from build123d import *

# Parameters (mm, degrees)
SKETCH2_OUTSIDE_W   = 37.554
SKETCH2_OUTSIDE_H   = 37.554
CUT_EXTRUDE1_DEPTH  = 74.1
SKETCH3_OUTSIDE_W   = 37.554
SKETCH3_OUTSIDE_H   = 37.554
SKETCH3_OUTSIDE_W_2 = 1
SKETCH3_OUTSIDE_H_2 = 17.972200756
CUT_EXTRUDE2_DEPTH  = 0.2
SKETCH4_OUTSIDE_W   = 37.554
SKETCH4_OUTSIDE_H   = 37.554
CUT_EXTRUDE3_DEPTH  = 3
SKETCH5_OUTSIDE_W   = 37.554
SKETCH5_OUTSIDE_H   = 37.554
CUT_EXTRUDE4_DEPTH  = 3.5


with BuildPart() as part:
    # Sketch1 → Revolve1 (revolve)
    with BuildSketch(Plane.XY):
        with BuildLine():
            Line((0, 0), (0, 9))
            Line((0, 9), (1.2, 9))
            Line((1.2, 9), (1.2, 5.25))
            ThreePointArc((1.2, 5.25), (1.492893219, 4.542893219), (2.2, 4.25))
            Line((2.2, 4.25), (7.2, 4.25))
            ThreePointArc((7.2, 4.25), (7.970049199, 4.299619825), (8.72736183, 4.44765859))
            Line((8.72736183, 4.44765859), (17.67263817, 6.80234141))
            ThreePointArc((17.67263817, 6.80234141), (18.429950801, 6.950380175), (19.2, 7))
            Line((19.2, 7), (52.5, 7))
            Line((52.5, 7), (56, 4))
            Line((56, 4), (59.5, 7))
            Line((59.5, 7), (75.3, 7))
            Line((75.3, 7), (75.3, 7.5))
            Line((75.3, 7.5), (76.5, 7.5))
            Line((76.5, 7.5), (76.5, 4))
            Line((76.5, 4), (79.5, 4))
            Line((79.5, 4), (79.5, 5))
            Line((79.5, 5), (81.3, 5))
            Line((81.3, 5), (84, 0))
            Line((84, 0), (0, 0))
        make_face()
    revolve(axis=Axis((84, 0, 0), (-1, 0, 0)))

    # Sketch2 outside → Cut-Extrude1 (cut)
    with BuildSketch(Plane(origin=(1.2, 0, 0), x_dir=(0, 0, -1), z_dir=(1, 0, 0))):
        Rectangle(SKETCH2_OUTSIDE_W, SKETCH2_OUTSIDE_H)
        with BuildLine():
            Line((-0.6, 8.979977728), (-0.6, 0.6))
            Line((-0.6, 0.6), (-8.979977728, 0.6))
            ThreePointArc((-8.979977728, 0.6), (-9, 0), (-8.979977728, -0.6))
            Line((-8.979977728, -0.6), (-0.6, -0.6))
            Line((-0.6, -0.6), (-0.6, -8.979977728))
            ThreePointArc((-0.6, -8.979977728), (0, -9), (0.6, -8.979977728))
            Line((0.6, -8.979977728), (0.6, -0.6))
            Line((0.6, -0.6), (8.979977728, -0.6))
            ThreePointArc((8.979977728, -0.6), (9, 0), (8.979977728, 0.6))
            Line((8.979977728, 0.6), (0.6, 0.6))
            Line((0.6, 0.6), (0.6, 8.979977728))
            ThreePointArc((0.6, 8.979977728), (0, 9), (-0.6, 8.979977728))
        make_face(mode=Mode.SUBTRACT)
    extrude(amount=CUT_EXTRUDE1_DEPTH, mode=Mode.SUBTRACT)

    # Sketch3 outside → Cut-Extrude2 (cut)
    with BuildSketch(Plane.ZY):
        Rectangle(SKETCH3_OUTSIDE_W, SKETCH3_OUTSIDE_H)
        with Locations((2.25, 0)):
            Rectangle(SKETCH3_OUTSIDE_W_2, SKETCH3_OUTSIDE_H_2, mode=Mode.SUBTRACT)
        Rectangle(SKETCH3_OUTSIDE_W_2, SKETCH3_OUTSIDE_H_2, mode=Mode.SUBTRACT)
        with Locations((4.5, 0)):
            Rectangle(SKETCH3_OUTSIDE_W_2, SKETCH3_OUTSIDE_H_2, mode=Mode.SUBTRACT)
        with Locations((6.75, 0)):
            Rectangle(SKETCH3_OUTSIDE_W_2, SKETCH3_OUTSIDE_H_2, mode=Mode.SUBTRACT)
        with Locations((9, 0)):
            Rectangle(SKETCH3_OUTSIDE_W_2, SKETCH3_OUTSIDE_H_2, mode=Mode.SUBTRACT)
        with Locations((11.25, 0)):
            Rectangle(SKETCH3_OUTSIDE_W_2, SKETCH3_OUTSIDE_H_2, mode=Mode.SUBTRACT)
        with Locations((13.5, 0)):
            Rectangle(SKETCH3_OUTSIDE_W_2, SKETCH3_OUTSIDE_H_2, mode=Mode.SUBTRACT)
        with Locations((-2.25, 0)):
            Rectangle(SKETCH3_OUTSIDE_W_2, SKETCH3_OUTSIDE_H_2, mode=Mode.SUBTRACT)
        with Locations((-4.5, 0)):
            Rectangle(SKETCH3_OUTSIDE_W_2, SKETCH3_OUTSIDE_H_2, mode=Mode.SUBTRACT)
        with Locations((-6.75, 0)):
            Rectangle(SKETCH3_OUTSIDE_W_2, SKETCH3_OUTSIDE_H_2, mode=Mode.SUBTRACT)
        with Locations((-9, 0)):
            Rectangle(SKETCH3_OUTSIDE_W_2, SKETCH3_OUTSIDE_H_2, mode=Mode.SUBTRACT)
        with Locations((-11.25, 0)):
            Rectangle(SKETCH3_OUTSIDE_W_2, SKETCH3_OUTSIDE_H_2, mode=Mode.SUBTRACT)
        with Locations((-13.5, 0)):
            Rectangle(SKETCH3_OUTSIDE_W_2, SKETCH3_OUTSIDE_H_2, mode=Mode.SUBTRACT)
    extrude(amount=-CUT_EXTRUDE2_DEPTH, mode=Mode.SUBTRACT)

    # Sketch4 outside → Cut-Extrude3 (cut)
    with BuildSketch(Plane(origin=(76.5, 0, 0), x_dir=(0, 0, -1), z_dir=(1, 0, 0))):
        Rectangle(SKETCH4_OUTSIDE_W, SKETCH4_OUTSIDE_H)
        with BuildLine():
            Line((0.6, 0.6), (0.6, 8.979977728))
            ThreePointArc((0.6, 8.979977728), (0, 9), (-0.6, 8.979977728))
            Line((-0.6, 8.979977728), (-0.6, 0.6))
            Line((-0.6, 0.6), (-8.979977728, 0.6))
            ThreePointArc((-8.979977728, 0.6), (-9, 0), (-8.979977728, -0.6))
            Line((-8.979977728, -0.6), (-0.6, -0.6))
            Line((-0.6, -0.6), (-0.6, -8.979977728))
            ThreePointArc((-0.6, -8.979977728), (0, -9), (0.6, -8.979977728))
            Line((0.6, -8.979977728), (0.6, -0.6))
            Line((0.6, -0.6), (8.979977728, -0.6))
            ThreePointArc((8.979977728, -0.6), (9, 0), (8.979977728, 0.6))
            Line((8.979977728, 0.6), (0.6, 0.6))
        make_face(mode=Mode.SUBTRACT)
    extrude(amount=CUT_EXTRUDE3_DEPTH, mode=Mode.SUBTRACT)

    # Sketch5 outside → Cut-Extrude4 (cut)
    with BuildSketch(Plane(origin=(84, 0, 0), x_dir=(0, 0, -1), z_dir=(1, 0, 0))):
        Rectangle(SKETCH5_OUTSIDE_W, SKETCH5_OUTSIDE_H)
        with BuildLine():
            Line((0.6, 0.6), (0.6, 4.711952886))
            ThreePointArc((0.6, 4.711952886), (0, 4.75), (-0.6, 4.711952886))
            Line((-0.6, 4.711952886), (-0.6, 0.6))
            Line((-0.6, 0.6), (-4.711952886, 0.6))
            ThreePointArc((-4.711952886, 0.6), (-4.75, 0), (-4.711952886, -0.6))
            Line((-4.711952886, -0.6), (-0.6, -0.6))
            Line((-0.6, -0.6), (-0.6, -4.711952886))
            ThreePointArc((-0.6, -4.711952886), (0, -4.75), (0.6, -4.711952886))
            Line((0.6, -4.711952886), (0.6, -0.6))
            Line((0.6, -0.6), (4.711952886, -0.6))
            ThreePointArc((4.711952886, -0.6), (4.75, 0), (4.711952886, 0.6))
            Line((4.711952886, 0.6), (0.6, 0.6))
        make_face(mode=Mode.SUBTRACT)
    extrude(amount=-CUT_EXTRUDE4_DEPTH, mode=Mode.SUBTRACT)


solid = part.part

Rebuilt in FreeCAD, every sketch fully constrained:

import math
import FreeCAD as App
import Part
import Sketcher

doc = App.newDocument("Part")
body = doc.addObject("PartDesign::Body", "Body")

# Sketch on XY plane
sketch1 = body.newObject("Sketcher::SketchObject", "Sketch")
sketch1.AttachmentSupport = (doc.getObject("XY_Plane"), [""])
sketch1.MapMode = "FlatFace"
sketch1.addGeometry([
    Part.LineSegment(App.Vector(0, 9, 0), App.Vector(0, 0, 0)),  # 0
    Part.LineSegment(App.Vector(0, 0, 0), App.Vector(84, 0, 0)),  # 1
    Part.LineSegment(App.Vector(84, 0, 0), App.Vector(81.3, 5, 0)),  # 2
    Part.LineSegment(App.Vector(81.3, 5, 0), App.Vector(79.5, 5, 0)),  # 3
    Part.LineSegment(App.Vector(79.5, 5, 0), App.Vector(79.5, 4, 0)),  # 4
    Part.LineSegment(App.Vector(79.5, 4, 0), App.Vector(76.5, 4, 0)),  # 5
    Part.LineSegment(App.Vector(76.5, 4, 0), App.Vector(76.5, 7.5, 0)),  # 6
    Part.LineSegment(App.Vector(76.5, 7.5, 0), App.Vector(75.3, 7.5, 0)),  # 7
    Part.LineSegment(App.Vector(75.3, 7.5, 0), App.Vector(75.3, 7, 0)),  # 8
    Part.LineSegment(App.Vector(75.3, 7, 0), App.Vector(59.5, 7, 0)),  # 9
    Part.LineSegment(App.Vector(59.5, 7, 0), App.Vector(56, 4, 0)),  # 10
    Part.LineSegment(App.Vector(56, 4, 0), App.Vector(52.5, 7, 0)),  # 11
    Part.LineSegment(App.Vector(52.5, 7, 0), App.Vector(19.2, 7, 0)),  # 12
    Part.ArcOfCircle(Part.Circle(App.Vector(19.2, 1, 0), App.Vector(0, 0, 1), 6), math.radians(90), math.radians(104.75)),  # 13
    Part.LineSegment(App.Vector(17.7, 6.8, 0), App.Vector(8.7, 4.4, 0)),  # 14
    Part.ArcOfCircle(Part.Circle(App.Vector(7.2, 10.3, 0), App.Vector(0, 0, 1), 6), math.radians(-90), math.radians(-75.25)),  # 15
    Part.LineSegment(App.Vector(7.2, 4.2, 0), App.Vector(2.2, 4.2, 0)),  # 16
    Part.ArcOfCircle(Part.Circle(App.Vector(2.2, 5.3, 0), App.Vector(0, 0, 1), 1), math.radians(-180), math.radians(-90)),  # 17
    Part.LineSegment(App.Vector(1.2, 5.2, 0), App.Vector(1.2, 9, 0)),  # 18
    Part.LineSegment(App.Vector(1.2, 9, 0), App.Vector(0, 9, 0)),  # 19
], False)
sketch1.addConstraint([
    Sketcher.Constraint("Coincident", 0, 2, 1, 1),
    Sketcher.Constraint("Coincident", 1, 2, 2, 1),
    Sketcher.Constraint("Coincident", 2, 2, 3, 1),
    Sketcher.Constraint("Coincident", 3, 2, 4, 1),
    Sketcher.Constraint("Coincident", 4, 2, 5, 1),
    Sketcher.Constraint("Coincident", 5, 2, 6, 1),
    Sketcher.Constraint("Coincident", 6, 2, 7, 1),
    Sketcher.Constraint("Coincident", 7, 2, 8, 1),
    Sketcher.Constraint("Coincident", 8, 2, 9, 1),
    Sketcher.Constraint("Coincident", 9, 2, 10, 1),
    Sketcher.Constraint("Coincident", 10, 2, 11, 1),
    Sketcher.Constraint("Coincident", 11, 2, 12, 1),
    Sketcher.Constraint("Tangent", 12, 2, 13, 1),
    Sketcher.Constraint("Tangent", 13, 2, 14, 1),
    Sketcher.Constraint("Tangent", 14, 2, 15, 2),
    Sketcher.Constraint("Tangent", 15, 1, 16, 1),
    Sketcher.Constraint("Tangent", 16, 2, 17, 2),
    Sketcher.Constraint("Tangent", 17, 1, 18, 1),
    Sketcher.Constraint("Coincident", 18, 2, 19, 1),
    Sketcher.Constraint("Coincident", 19, 2, 0, 1),
    Sketcher.Constraint("Vertical", 0),
    Sketcher.Constraint("Horizontal", 1),
    Sketcher.Constraint("Horizontal", 3),
    Sketcher.Constraint("Vertical", 4),
    Sketcher.Constraint("Horizontal", 5),
    Sketcher.Constraint("Vertical", 6),
    Sketcher.Constraint("Horizontal", 7),
    Sketcher.Constraint("Vertical", 8),
    Sketcher.Constraint("Horizontal", 9),
    Sketcher.Constraint("Horizontal", 12),
    Sketcher.Constraint("Horizontal", 16),
    Sketcher.Constraint("Vertical", 18),
    Sketcher.Constraint("Horizontal", 19),
    Sketcher.Constraint("Coincident", 0, 2, -1, 1),
    Sketcher.Constraint("Equal", 13, 15),
    Sketcher.Constraint("Horizontal", 5, 2, 10, 2),
    Sketcher.Constraint("Horizontal", 9, 2, 11, 2),
    Sketcher.Constraint("Equal", 7, 19),
    Sketcher.Constraint("Equal", 10, 11),
    Sketcher.Constraint("Radius", 13, 6.0),
    Sketcher.Constraint("Radius", 17, 1.0),
    Sketcher.Constraint("DistanceX", 1, 1, 1, 2, 84.0),
    Sketcher.Constraint("DistanceX", 5, 2, 5, 1, 3.0),
    Sketcher.Constraint("DistanceX", 16, 2, 16, 1, 5.0),
    Sketcher.Constraint("DistanceY", 0, 2, 0, 1, 9.0),
    Sketcher.Constraint("DistanceY", 4, 2, 4, 1, 1.0),
    Sketcher.Constraint("DistanceX", 3, 2, 3, 1, 1.8),
    Sketcher.Constraint("DistanceX", 7, 2, 7, 1, 1.2),
    Sketcher.Constraint("DistanceX", 9, 2, 9, 1, 15.8),
    Sketcher.Constraint("DistanceX", 12, 2, 12, 1, 33.3),
    Sketcher.Constraint("DistanceY", 6, 1, 6, 2, 3.5),
    Sketcher.Constraint("DistanceY", 8, 2, 8, 1, 0.5),
    Sketcher.Constraint("DistanceY", -1, 1, 13, 3, 1.0),
    Sketcher.Constraint("DistanceX", -1, 1, 10, 2, 56.0),
    Sketcher.Constraint("DistanceX", 15, 3, 13, 3, 12.0),
    Sketcher.Constraint("DistanceY", 18, 1, 18, 2, 3.75),
])
revolution = body.newObject("PartDesign::Revolution", "Revolution")
revolution.Profile = sketch1
revolution.ReferenceAxis = (sketch1, ["H_Axis"])
revolution.Angle = 360

# Sketch on YZ plane
sketch2 = body.newObject("Sketcher::SketchObject", "Sketch001")
sketch2.AttachmentSupport = (doc.getObject("YZ_Plane"), [""])
sketch2.MapMode = "FlatFace"
sketch2.AttachmentOffset = App.Placement(App.Vector(0, 0, 1.2), App.Rotation())
sketch2.addGeometry([
    Part.LineSegment(App.Vector(18.8, 18.8, 0), App.Vector(-18.8, 18.8, 0)),  # 0
    Part.LineSegment(App.Vector(-18.8, 18.8, 0), App.Vector(-18.8, -18.8, 0)),  # 1
    Part.LineSegment(App.Vector(-18.8, -18.8, 0), App.Vector(18.8, -18.8, 0)),  # 2
    Part.LineSegment(App.Vector(18.8, -18.8, 0), App.Vector(18.8, 18.8, 0)),  # 3
    Part.LineSegment(App.Vector(0.6, 0.6, 0), App.Vector(9, 0.6, 0)),  # 4
    Part.ArcOfCircle(Part.Circle(App.Vector(0, 0, 0), App.Vector(0, 0, 1), 9), math.radians(-3.82), math.radians(3.82)),  # 5
    Part.LineSegment(App.Vector(9, -0.6, 0), App.Vector(0.6, -0.6, 0)),  # 6
    Part.LineSegment(App.Vector(0.6, -0.6, 0), App.Vector(0.6, -9, 0)),  # 7
    Part.ArcOfCircle(Part.Circle(App.Vector(0, 0, 0), App.Vector(0, 0, 1), 9), math.radians(-93.82), math.radians(-86.18)),  # 8
    Part.LineSegment(App.Vector(-0.6, -9, 0), App.Vector(-0.6, -0.6, 0)),  # 9
    Part.LineSegment(App.Vector(-0.6, -0.6, 0), App.Vector(-9, -0.6, 0)),  # 10
    Part.ArcOfCircle(Part.Circle(App.Vector(0, 0, 0), App.Vector(0, 0, 1), 9), math.radians(176.18), math.radians(183.82)),  # 11
    Part.LineSegment(App.Vector(-9, 0.6, 0), App.Vector(-0.6, 0.6, 0)),  # 12
    Part.LineSegment(App.Vector(-0.6, 0.6, 0), App.Vector(-0.6, 9, 0)),  # 13
    Part.ArcOfCircle(Part.Circle(App.Vector(0, 0, 0), App.Vector(0, 0, 1), 9), math.radians(86.18), math.radians(93.82)),  # 14
    Part.LineSegment(App.Vector(0.6, 9, 0), App.Vector(0.6, 0.6, 0)),  # 15
], False)
sketch2.addConstraint([
    Sketcher.Constraint("Coincident", 0, 2, 1, 1),
    Sketcher.Constraint("Coincident", 1, 2, 2, 1),
    Sketcher.Constraint("Coincident", 2, 2, 3, 1),
    Sketcher.Constraint("Coincident", 3, 2, 0, 1),
    Sketcher.Constraint("Coincident", 4, 2, 5, 2),
    Sketcher.Constraint("Coincident", 5, 1, 6, 1),
    Sketcher.Constraint("Coincident", 6, 2, 7, 1),
    Sketcher.Constraint("Coincident", 7, 2, 8, 2),
    Sketcher.Constraint("Coincident", 8, 1, 9, 1),
    Sketcher.Constraint("Coincident", 9, 2, 10, 1),
    Sketcher.Constraint("Coincident", 10, 2, 11, 2),
    Sketcher.Constraint("Coincident", 11, 1, 12, 1),
    Sketcher.Constraint("Coincident", 12, 2, 13, 1),
    Sketcher.Constraint("Coincident", 13, 2, 14, 2),
    Sketcher.Constraint("Coincident", 14, 1, 15, 1),
    Sketcher.Constraint("Coincident", 15, 2, 4, 1),
    Sketcher.Constraint("Horizontal", 0),
    Sketcher.Constraint("Vertical", 1),
    Sketcher.Constraint("Horizontal", 2),
    Sketcher.Constraint("Vertical", 3),
    Sketcher.Constraint("Horizontal", 4),
    Sketcher.Constraint("Horizontal", 6),
    Sketcher.Constraint("Vertical", 7),
    Sketcher.Constraint("Vertical", 9),
    Sketcher.Constraint("Horizontal", 10),
    Sketcher.Constraint("Horizontal", 12),
    Sketcher.Constraint("Vertical", 13),
    Sketcher.Constraint("Vertical", 15),
    Sketcher.Constraint("Coincident", 5, 3, -1, 1),
    Sketcher.Constraint("Coincident", 8, 3, -1, 1),
    Sketcher.Constraint("Coincident", 11, 3, -1, 1),
    Sketcher.Constraint("Coincident", 14, 3, -1, 1),
    Sketcher.Constraint("Equal", 5, 8),
    Sketcher.Constraint("Equal", 8, 11),
    Sketcher.Constraint("Equal", 11, 14),
    Sketcher.Constraint("Symmetric", 0, 2, 2, 2, -1, 1),
    Sketcher.Constraint("Symmetric", 6, 2, 12, 2, -1, 1),
    Sketcher.Constraint("Symmetric", 9, 2, 15, 2, -1, 1),
    Sketcher.Constraint("Symmetric", 6, 2, 9, 2, -2),
    Sketcher.Constraint("Equal", 2, 1),
    Sketcher.Constraint("Equal", 12, 7),
    Sketcher.Constraint("Radius", 5, 9.0),
    Sketcher.Constraint("DistanceY", -1, 1, 4, 2, 0.6),
    Sketcher.Constraint("DistanceX", 0, 2, 0, 1, 37.554),
])
pocket1 = body.newObject("PartDesign::Pocket", "Pocket")
pocket1.Profile = sketch2
pocket1.Length = 74.1
pocket1.Reversed = True

# Sketch on YZ plane
sketch3 = body.newObject("Sketcher::SketchObject", "Sketch002")
sketch3.AttachmentSupport = (doc.getObject("YZ_Plane"), [""])
sketch3.MapMode = "FlatFace"
sketch3.addGeometry([
    Part.LineSegment(App.Vector(18.8, -18.8, 0), App.Vector(-18.8, -18.8, 0)),  # 0
    Part.LineSegment(App.Vector(-18.8, -18.8, 0), App.Vector(-18.8, 18.8, 0)),  # 1
    Part.LineSegment(App.Vector(-18.8, 18.8, 0), App.Vector(18.8, 18.8, 0)),  # 2
    Part.LineSegment(App.Vector(18.8, 18.8, 0), App.Vector(18.8, -18.8, 0)),  # 3
    Part.LineSegment(App.Vector(-9, -13, 0), App.Vector(-9, -14, 0)),  # 4
    Part.LineSegment(App.Vector(-9, -14, 0), App.Vector(9, -14, 0)),  # 5
    Part.LineSegment(App.Vector(9, -14, 0), App.Vector(9, -13, 0)),  # 6
    Part.LineSegment(App.Vector(9, -13, 0), App.Vector(-9, -13, 0)),  # 7
    Part.LineSegment(App.Vector(-9, -10.8, 0), App.Vector(-9, -11.8, 0)),  # 8
    Part.LineSegment(App.Vector(-9, -11.8, 0), App.Vector(9, -11.8, 0)),  # 9
    Part.LineSegment(App.Vector(9, -11.8, 0), App.Vector(9, -10.8, 0)),  # 10
    Part.LineSegment(App.Vector(9, -10.8, 0), App.Vector(-9, -10.8, 0)),  # 11
    Part.LineSegment(App.Vector(-9, -8.5, 0), App.Vector(-9, -9.5, 0)),  # 12
    Part.LineSegment(App.Vector(-9, -9.5, 0), App.Vector(9, -9.5, 0)),  # 13
    Part.LineSegment(App.Vector(9, -9.5, 0), App.Vector(9, -8.5, 0)),  # 14
    Part.LineSegment(App.Vector(9, -8.5, 0), App.Vector(-9, -8.5, 0)),  # 15
    Part.LineSegment(App.Vector(-9, -6.2, 0), App.Vector(-9, -7.2, 0)),  # 16
    Part.LineSegment(App.Vector(-9, -7.2, 0), App.Vector(9, -7.2, 0)),  # 17
    Part.LineSegment(App.Vector(9, -7.2, 0), App.Vector(9, -6.2, 0)),  # 18
    Part.LineSegment(App.Vector(9, -6.2, 0), App.Vector(-9, -6.2, 0)),  # 19
    Part.LineSegment(App.Vector(-9, -4, 0), App.Vector(-9, -5, 0)),  # 20
    Part.LineSegment(App.Vector(-9, -5, 0), App.Vector(9, -5, 0)),  # 21
    Part.LineSegment(App.Vector(9, -5, 0), App.Vector(9, -4, 0)),  # 22
    Part.LineSegment(App.Vector(9, -4, 0), App.Vector(-9, -4, 0)),  # 23
    Part.LineSegment(App.Vector(-9, -1.8, 0), App.Vector(-9, -2.8, 0)),  # 24
    Part.LineSegment(App.Vector(-9, -2.8, 0), App.Vector(9, -2.8, 0)),  # 25
    Part.LineSegment(App.Vector(9, -2.8, 0), App.Vector(9, -1.8, 0)),  # 26
    Part.LineSegment(App.Vector(9, -1.8, 0), App.Vector(-9, -1.8, 0)),  # 27
    Part.LineSegment(App.Vector(-9, 0.5, 0), App.Vector(-9, -0.5, 0)),  # 28
    Part.LineSegment(App.Vector(-9, -0.5, 0), App.Vector(9, -0.5, 0)),  # 29
    Part.LineSegment(App.Vector(9, -0.5, 0), App.Vector(9, 0.5, 0)),  # 30
    Part.LineSegment(App.Vector(9, 0.5, 0), App.Vector(-9, 0.5, 0)),  # 31
    Part.LineSegment(App.Vector(-9, 2.8, 0), App.Vector(-9, 1.8, 0)),  # 32
    Part.LineSegment(App.Vector(-9, 1.8, 0), App.Vector(9, 1.8, 0)),  # 33
    Part.LineSegment(App.Vector(9, 1.8, 0), App.Vector(9, 2.8, 0)),  # 34
    Part.LineSegment(App.Vector(9, 2.8, 0), App.Vector(-9, 2.8, 0)),  # 35
    Part.LineSegment(App.Vector(-9, 5, 0), App.Vector(-9, 4, 0)),  # 36
    Part.LineSegment(App.Vector(-9, 4, 0), App.Vector(9, 4, 0)),  # 37
    Part.LineSegment(App.Vector(9, 4, 0), App.Vector(9, 5, 0)),  # 38
    Part.LineSegment(App.Vector(9, 5, 0), App.Vector(-9, 5, 0)),  # 39
    Part.LineSegment(App.Vector(-9, 7.2, 0), App.Vector(-9, 6.2, 0)),  # 40
    Part.LineSegment(App.Vector(-9, 6.2, 0), App.Vector(9, 6.2, 0)),  # 41
    Part.LineSegment(App.Vector(9, 6.2, 0), App.Vector(9, 7.2, 0)),  # 42
    Part.LineSegment(App.Vector(9, 7.2, 0), App.Vector(-9, 7.2, 0)),  # 43
    Part.LineSegment(App.Vector(-9, 9.5, 0), App.Vector(-9, 8.5, 0)),  # 44
    Part.LineSegment(App.Vector(-9, 8.5, 0), App.Vector(9, 8.5, 0)),  # 45
    Part.LineSegment(App.Vector(9, 8.5, 0), App.Vector(9, 9.5, 0)),  # 46
    Part.LineSegment(App.Vector(9, 9.5, 0), App.Vector(-9, 9.5, 0)),  # 47
    Part.LineSegment(App.Vector(-9, 11.8, 0), App.Vector(-9, 10.8, 0)),  # 48
    Part.LineSegment(App.Vector(-9, 10.8, 0), App.Vector(9, 10.8, 0)),  # 49
    Part.LineSegment(App.Vector(9, 10.8, 0), App.Vector(9, 11.8, 0)),  # 50
    Part.LineSegment(App.Vector(9, 11.8, 0), App.Vector(-9, 11.8, 0)),  # 51
    Part.LineSegment(App.Vector(-9, 14, 0), App.Vector(-9, 13, 0)),  # 52
    Part.LineSegment(App.Vector(-9, 13, 0), App.Vector(9, 13, 0)),  # 53
    Part.LineSegment(App.Vector(9, 13, 0), App.Vector(9, 14, 0)),  # 54
    Part.LineSegment(App.Vector(9, 14, 0), App.Vector(-9, 14, 0)),  # 55
], False)
sketch3.addConstraint([
    Sketcher.Constraint("Coincident", 0, 2, 1, 1),
    Sketcher.Constraint("Coincident", 1, 2, 2, 1),
    Sketcher.Constraint("Coincident", 2, 2, 3, 1),
    Sketcher.Constraint("Coincident", 3, 2, 0, 1),
    Sketcher.Constraint("Coincident", 4, 2, 5, 1),
    Sketcher.Constraint("Coincident", 5, 2, 6, 1),
    Sketcher.Constraint("Coincident", 6, 2, 7, 1),
    Sketcher.Constraint("Coincident", 7, 2, 4, 1),
    Sketcher.Constraint("Coincident", 8, 2, 9, 1),
    Sketcher.Constraint("Coincident", 9, 2, 10, 1),
    Sketcher.Constraint("Coincident", 10, 2, 11, 1),
    Sketcher.Constraint("Coincident", 11, 2, 8, 1),
    Sketcher.Constraint("Coincident", 12, 2, 13, 1),
    Sketcher.Constraint("Coincident", 13, 2, 14, 1),
    Sketcher.Constraint("Coincident", 14, 2, 15, 1),
    Sketcher.Constraint("Coincident", 15, 2, 12, 1),
    Sketcher.Constraint("Coincident", 16, 2, 17, 1),
    Sketcher.Constraint("Coincident", 17, 2, 18, 1),
    Sketcher.Constraint("Coincident", 18, 2, 19, 1),
    Sketcher.Constraint("Coincident", 19, 2, 16, 1),
    Sketcher.Constraint("Coincident", 20, 2, 21, 1),
    Sketcher.Constraint("Coincident", 21, 2, 22, 1),
    Sketcher.Constraint("Coincident", 22, 2, 23, 1),
    Sketcher.Constraint("Coincident", 23, 2, 20, 1),
    Sketcher.Constraint("Coincident", 24, 2, 25, 1),
    Sketcher.Constraint("Coincident", 25, 2, 26, 1),
    Sketcher.Constraint("Coincident", 26, 2, 27, 1),
    Sketcher.Constraint("Coincident", 27, 2, 24, 1),
    Sketcher.Constraint("Coincident", 28, 2, 29, 1),
    Sketcher.Constraint("Coincident", 29, 2, 30, 1),
    Sketcher.Constraint("Coincident", 30, 2, 31, 1),
    Sketcher.Constraint("Coincident", 31, 2, 28, 1),
    Sketcher.Constraint("Coincident", 32, 2, 33, 1),
    Sketcher.Constraint("Coincident", 33, 2, 34, 1),
    Sketcher.Constraint("Coincident", 34, 2, 35, 1),
    Sketcher.Constraint("Coincident", 35, 2, 32, 1),
    Sketcher.Constraint("Coincident", 36, 2, 37, 1),
    Sketcher.Constraint("Coincident", 37, 2, 38, 1),
    Sketcher.Constraint("Coincident", 38, 2, 39, 1),
    Sketcher.Constraint("Coincident", 39, 2, 36, 1),
    Sketcher.Constraint("Coincident", 40, 2, 41, 1),
    Sketcher.Constraint("Coincident", 41, 2, 42, 1),
    Sketcher.Constraint("Coincident", 42, 2, 43, 1),
    Sketcher.Constraint("Coincident", 43, 2, 40, 1),
    Sketcher.Constraint("Coincident", 44, 2, 45, 1),
    Sketcher.Constraint("Coincident", 45, 2, 46, 1),
    Sketcher.Constraint("Coincident", 46, 2, 47, 1),
    Sketcher.Constraint("Coincident", 47, 2, 44, 1),
    Sketcher.Constraint("Coincident", 48, 2, 49, 1),
    Sketcher.Constraint("Coincident", 49, 2, 50, 1),
    Sketcher.Constraint("Coincident", 50, 2, 51, 1),
    Sketcher.Constraint("Coincident", 51, 2, 48, 1),
    Sketcher.Constraint("Coincident", 52, 2, 53, 1),
    Sketcher.Constraint("Coincident", 53, 2, 54, 1),
    Sketcher.Constraint("Coincident", 54, 2, 55, 1),
    Sketcher.Constraint("Coincident", 55, 2, 52, 1),
    Sketcher.Constraint("Horizontal", 0),
    Sketcher.Constraint("Vertical", 1),
    Sketcher.Constraint("Horizontal", 2),
    Sketcher.Constraint("Vertical", 3),
    Sketcher.Constraint("Vertical", 4),
    Sketcher.Constraint("Horizontal", 5),
    Sketcher.Constraint("Vertical", 6),
    Sketcher.Constraint("Horizontal", 7),
    Sketcher.Constraint("Vertical", 8),
    Sketcher.Constraint("Horizontal", 9),
    Sketcher.Constraint("Vertical", 10),
    Sketcher.Constraint("Horizontal", 11),
    Sketcher.Constraint("Vertical", 12),
    Sketcher.Constraint("Horizontal", 13),
    Sketcher.Constraint("Vertical", 14),
    Sketcher.Constraint("Horizontal", 15),
    Sketcher.Constraint("Vertical", 16),
    Sketcher.Constraint("Horizontal", 17),
    Sketcher.Constraint("Vertical", 18),
    Sketcher.Constraint("Horizontal", 19),
    Sketcher.Constraint("Vertical", 20),
    Sketcher.Constraint("Horizontal", 21),
    Sketcher.Constraint("Vertical", 22),
    Sketcher.Constraint("Horizontal", 23),
    Sketcher.Constraint("Vertical", 24),
    Sketcher.Constraint("Horizontal", 25),
    Sketcher.Constraint("Vertical", 26),
    Sketcher.Constraint("Horizontal", 27),
    Sketcher.Constraint("Vertical", 28),
    Sketcher.Constraint("Horizontal", 29),
    Sketcher.Constraint("Vertical", 30),
    Sketcher.Constraint("Horizontal", 31),
    Sketcher.Constraint("Vertical", 32),
    Sketcher.Constraint("Horizontal", 33),
    Sketcher.Constraint("Vertical", 34),
    Sketcher.Constraint("Horizontal", 35),
    Sketcher.Constraint("Vertical", 36),
    Sketcher.Constraint("Horizontal", 37),
    Sketcher.Constraint("Vertical", 38),
    Sketcher.Constraint("Horizontal", 39),
    Sketcher.Constraint("Vertical", 40),
    Sketcher.Constraint("Horizontal", 41),
    Sketcher.Constraint("Vertical", 42),
    Sketcher.Constraint("Horizontal", 43),
    Sketcher.Constraint("Vertical", 44),
    Sketcher.Constraint("Horizontal", 45),
    Sketcher.Constraint("Vertical", 46),
    Sketcher.Constraint("Horizontal", 47),
    Sketcher.Constraint("Vertical", 48),
    Sketcher.Constraint("Horizontal", 49),
    Sketcher.Constraint("Vertical", 50),
    Sketcher.Constraint("Horizontal", 51),
    Sketcher.Constraint("Vertical", 52),
    Sketcher.Constraint("Horizontal", 53),
    Sketcher.Constraint("Vertical", 54),
    Sketcher.Constraint("Horizontal", 55),
    Sketcher.Constraint("Symmetric", 0, 2, 2, 2, -1, 1),
    Sketcher.Constraint("Symmetric", 28, 2, 30, 2, -1, 1),
    Sketcher.Constraint("Symmetric", 26, 2, 32, 2, -1, 1),
    Sketcher.Constraint("Symmetric", 24, 2, 34, 2, -1, 1),
    Sketcher.Constraint("Symmetric", 22, 2, 36, 2, -1, 1),
    Sketcher.Constraint("Symmetric", 20, 2, 38, 2, -1, 1),
    Sketcher.Constraint("Symmetric", 18, 2, 40, 2, -1, 1),
    Sketcher.Constraint("Symmetric", 16, 2, 42, 2, -1, 1),
    Sketcher.Constraint("Symmetric", 14, 2, 44, 2, -1, 1),
    Sketcher.Constraint("Symmetric", 12, 2, 46, 2, -1, 1),
    Sketcher.Constraint("Symmetric", 10, 2, 48, 2, -1, 1),
    Sketcher.Constraint("Symmetric", 8, 2, 50, 2, -1, 1),
    Sketcher.Constraint("Symmetric", 6, 2, 52, 2, -1, 1),
    Sketcher.Constraint("Symmetric", 4, 2, 54, 2, -1, 1),
    Sketcher.Constraint("Vertical", 7, 2, 8, 2),
    Sketcher.Constraint("Vertical", 6, 2, 9, 2),
    Sketcher.Constraint("Vertical", 11, 2, 12, 2),
    Sketcher.Constraint("Vertical", 10, 2, 13, 2),
    Sketcher.Constraint("Vertical", 15, 2, 16, 2),
    Sketcher.Constraint("Vertical", 14, 2, 17, 2),
    Sketcher.Constraint("Vertical", 19, 2, 20, 2),
    Sketcher.Constraint("Vertical", 18, 2, 21, 2),
    Sketcher.Constraint("Vertical", 23, 2, 24, 2),
    Sketcher.Constraint("Vertical", 22, 2, 25, 2),
    Sketcher.Constraint("Vertical", 27, 2, 28, 2),
    Sketcher.Constraint("Vertical", 26, 2, 29, 2),
    Sketcher.Constraint("Equal", 2, 1),
    Sketcher.Constraint("Equal", 6, 8),
    Sketcher.Constraint("Equal", 10, 12),
    Sketcher.Constraint("Equal", 14, 16),
    Sketcher.Constraint("Equal", 18, 20),
    Sketcher.Constraint("Equal", 22, 24),
    Sketcher.Constraint("Equal", 26, 28),
    Sketcher.Constraint("DistanceY", 4, 2, 4, 1, 1.0),
    Sketcher.Constraint("DistanceY", 4, 2, -1, 1, 14.0),
    Sketcher.Constraint("DistanceY", 20, 2, -1, 1, 5.0),
    Sketcher.Constraint("DistanceY", 12, 2, -1, 1, 9.5),
    Sketcher.Constraint("DistanceY", 11, 2, 16, 2, 3.5),
    Sketcher.Constraint("DistanceY", 19, 2, 24, 2, 3.5),
    Sketcher.Constraint("DistanceY", 27, 2, 32, 2, 3.5),
    Sketcher.Constraint("DistanceX", 0, 2, 0, 1, 37.554),
    Sketcher.Constraint("DistanceX", 5, 1, 5, 2, 17.972201),
])
pocket2 = body.newObject("PartDesign::Pocket", "Pocket001")
pocket2.Profile = sketch3
pocket2.Length = 0.2
pocket2.Reversed = True

# Sketch on YZ plane
sketch4 = body.newObject("Sketcher::SketchObject", "Sketch003")
sketch4.AttachmentSupport = (doc.getObject("YZ_Plane"), [""])
sketch4.MapMode = "FlatFace"
sketch4.AttachmentOffset = App.Placement(App.Vector(0, 0, 76.5), App.Rotation())
sketch4.addGeometry([
    Part.LineSegment(App.Vector(18.8, 18.8, 0), App.Vector(-18.8, 18.8, 0)),  # 0
    Part.LineSegment(App.Vector(-18.8, 18.8, 0), App.Vector(-18.8, -18.8, 0)),  # 1
    Part.LineSegment(App.Vector(-18.8, -18.8, 0), App.Vector(18.8, -18.8, 0)),  # 2
    Part.LineSegment(App.Vector(18.8, -18.8, 0), App.Vector(18.8, 18.8, 0)),  # 3
    Part.LineSegment(App.Vector(9, -0.6, 0), App.Vector(0.6, -0.6, 0)),  # 4
    Part.LineSegment(App.Vector(0.6, -0.6, 0), App.Vector(0.6, -9, 0)),  # 5
    Part.ArcOfCircle(Part.Circle(App.Vector(0, 0, 0), App.Vector(0, 0, 1), 9), math.radians(-93.82), math.radians(-86.18)),  # 6
    Part.LineSegment(App.Vector(-0.6, -9, 0), App.Vector(-0.6, -0.6, 0)),  # 7
    Part.LineSegment(App.Vector(-0.6, -0.6, 0), App.Vector(-9, -0.6, 0)),  # 8
    Part.ArcOfCircle(Part.Circle(App.Vector(0, 0, 0), App.Vector(0, 0, 1), 9), math.radians(176.18), math.radians(183.82)),  # 9
    Part.LineSegment(App.Vector(-9, 0.6, 0), App.Vector(-0.6, 0.6, 0)),  # 10
    Part.LineSegment(App.Vector(-0.6, 0.6, 0), App.Vector(-0.6, 9, 0)),  # 11
    Part.ArcOfCircle(Part.Circle(App.Vector(0, 0, 0), App.Vector(0, 0, 1), 9), math.radians(86.18), math.radians(93.82)),  # 12
    Part.LineSegment(App.Vector(0.6, 9, 0), App.Vector(0.6, 0.6, 0)),  # 13
    Part.LineSegment(App.Vector(0.6, 0.6, 0), App.Vector(9, 0.6, 0)),  # 14
    Part.ArcOfCircle(Part.Circle(App.Vector(0, 0, 0), App.Vector(0, 0, 1), 9), math.radians(-3.82), math.radians(3.82)),  # 15
], False)
sketch4.addConstraint([
    Sketcher.Constraint("Coincident", 0, 2, 1, 1),
    Sketcher.Constraint("Coincident", 1, 2, 2, 1),
    Sketcher.Constraint("Coincident", 2, 2, 3, 1),
    Sketcher.Constraint("Coincident", 3, 2, 0, 1),
    Sketcher.Constraint("Coincident", 4, 2, 5, 1),
    Sketcher.Constraint("Coincident", 5, 2, 6, 2),
    Sketcher.Constraint("Coincident", 6, 1, 7, 1),
    Sketcher.Constraint("Coincident", 7, 2, 8, 1),
    Sketcher.Constraint("Coincident", 8, 2, 9, 2),
    Sketcher.Constraint("Coincident", 9, 1, 10, 1),
    Sketcher.Constraint("Coincident", 10, 2, 11, 1),
    Sketcher.Constraint("Coincident", 11, 2, 12, 2),
    Sketcher.Constraint("Coincident", 12, 1, 13, 1),
    Sketcher.Constraint("Coincident", 13, 2, 14, 1),
    Sketcher.Constraint("Coincident", 14, 2, 15, 2),
    Sketcher.Constraint("Coincident", 15, 1, 4, 1),
    Sketcher.Constraint("Horizontal", 0),
    Sketcher.Constraint("Vertical", 1),
    Sketcher.Constraint("Horizontal", 2),
    Sketcher.Constraint("Vertical", 3),
    Sketcher.Constraint("Horizontal", 4),
    Sketcher.Constraint("Vertical", 5),
    Sketcher.Constraint("Vertical", 7),
    Sketcher.Constraint("Horizontal", 8),
    Sketcher.Constraint("Horizontal", 10),
    Sketcher.Constraint("Vertical", 11),
    Sketcher.Constraint("Vertical", 13),
    Sketcher.Constraint("Horizontal", 14),
    Sketcher.Constraint("Coincident", 6, 3, -1, 1),
    Sketcher.Constraint("Coincident", 9, 3, -1, 1),
    Sketcher.Constraint("Coincident", 12, 3, -1, 1),
    Sketcher.Constraint("Coincident", 15, 3, -1, 1),
    Sketcher.Constraint("Equal", 6, 9),
    Sketcher.Constraint("Equal", 9, 12),
    Sketcher.Constraint("Equal", 12, 15),
    Sketcher.Constraint("Symmetric", 0, 2, 2, 2, -1, 1),
    Sketcher.Constraint("Symmetric", 4, 2, 10, 2, -1, 1),
    Sketcher.Constraint("Symmetric", 7, 2, 13, 2, -1, 1),
    Sketcher.Constraint("Symmetric", 4, 2, 7, 2, -2),
    Sketcher.Constraint("Equal", 2, 1),
    Sketcher.Constraint("Equal", 14, 5),
    Sketcher.Constraint("Radius", 6, 9.0),
    Sketcher.Constraint("DistanceX", -1, 1, 4, 2, 0.6),
    Sketcher.Constraint("DistanceX", 0, 2, 0, 1, 37.554),
])
pocket3 = body.newObject("PartDesign::Pocket", "Pocket002")
pocket3.Profile = sketch4
pocket3.Length = 3
pocket3.Reversed = True

# Sketch on YZ plane
sketch5 = body.newObject("Sketcher::SketchObject", "Sketch004")
sketch5.AttachmentSupport = (doc.getObject("YZ_Plane"), [""])
sketch5.MapMode = "FlatFace"
sketch5.AttachmentOffset = App.Placement(App.Vector(0, 0, 84), App.Rotation())
sketch5.addGeometry([
    Part.LineSegment(App.Vector(18.8, 18.8, 0), App.Vector(-18.8, 18.8, 0)),  # 0
    Part.LineSegment(App.Vector(-18.8, 18.8, 0), App.Vector(-18.8, -18.8, 0)),  # 1
    Part.LineSegment(App.Vector(-18.8, -18.8, 0), App.Vector(18.8, -18.8, 0)),  # 2
    Part.LineSegment(App.Vector(18.8, -18.8, 0), App.Vector(18.8, 18.8, 0)),  # 3
    Part.LineSegment(App.Vector(4.7, -0.6, 0), App.Vector(0.6, -0.6, 0)),  # 4
    Part.LineSegment(App.Vector(0.6, -0.6, 0), App.Vector(0.6, -4.7, 0)),  # 5
    Part.ArcOfCircle(Part.Circle(App.Vector(0, 0, 0), App.Vector(0, 0, 1), 4.7), math.radians(-97.26), math.radians(-82.74)),  # 6
    Part.LineSegment(App.Vector(-0.6, -4.7, 0), App.Vector(-0.6, -0.6, 0)),  # 7
    Part.LineSegment(App.Vector(-0.6, -0.6, 0), App.Vector(-4.7, -0.6, 0)),  # 8
    Part.ArcOfCircle(Part.Circle(App.Vector(0, 0, 0), App.Vector(0, 0, 1), 4.7), math.radians(172.74), math.radians(187.26)),  # 9
    Part.LineSegment(App.Vector(-4.7, 0.6, 0), App.Vector(-0.6, 0.6, 0)),  # 10
    Part.LineSegment(App.Vector(-0.6, 0.6, 0), App.Vector(-0.6, 4.7, 0)),  # 11
    Part.ArcOfCircle(Part.Circle(App.Vector(0, 0, 0), App.Vector(0, 0, 1), 4.7), math.radians(82.74), math.radians(97.26)),  # 12
    Part.LineSegment(App.Vector(0.6, 4.7, 0), App.Vector(0.6, 0.6, 0)),  # 13
    Part.LineSegment(App.Vector(0.6, 0.6, 0), App.Vector(4.7, 0.6, 0)),  # 14
    Part.ArcOfCircle(Part.Circle(App.Vector(0, 0, 0), App.Vector(0, 0, 1), 4.7), math.radians(-7.26), math.radians(7.26)),  # 15
], False)
sketch5.addConstraint([
    Sketcher.Constraint("Coincident", 0, 2, 1, 1),
    Sketcher.Constraint("Coincident", 1, 2, 2, 1),
    Sketcher.Constraint("Coincident", 2, 2, 3, 1),
    Sketcher.Constraint("Coincident", 3, 2, 0, 1),
    Sketcher.Constraint("Coincident", 4, 2, 5, 1),
    Sketcher.Constraint("Coincident", 5, 2, 6, 2),
    Sketcher.Constraint("Coincident", 6, 1, 7, 1),
    Sketcher.Constraint("Coincident", 7, 2, 8, 1),
    Sketcher.Constraint("Coincident", 8, 2, 9, 2),
    Sketcher.Constraint("Coincident", 9, 1, 10, 1),
    Sketcher.Constraint("Coincident", 10, 2, 11, 1),
    Sketcher.Constraint("Coincident", 11, 2, 12, 2),
    Sketcher.Constraint("Coincident", 12, 1, 13, 1),
    Sketcher.Constraint("Coincident", 13, 2, 14, 1),
    Sketcher.Constraint("Coincident", 14, 2, 15, 2),
    Sketcher.Constraint("Coincident", 15, 1, 4, 1),
    Sketcher.Constraint("Horizontal", 0),
    Sketcher.Constraint("Vertical", 1),
    Sketcher.Constraint("Horizontal", 2),
    Sketcher.Constraint("Vertical", 3),
    Sketcher.Constraint("Horizontal", 4),
    Sketcher.Constraint("Vertical", 5),
    Sketcher.Constraint("Vertical", 7),
    Sketcher.Constraint("Horizontal", 8),
    Sketcher.Constraint("Horizontal", 10),
    Sketcher.Constraint("Vertical", 11),
    Sketcher.Constraint("Vertical", 13),
    Sketcher.Constraint("Horizontal", 14),
    Sketcher.Constraint("Coincident", 6, 3, -1, 1),
    Sketcher.Constraint("Coincident", 9, 3, -1, 1),
    Sketcher.Constraint("Coincident", 12, 3, -1, 1),
    Sketcher.Constraint("Coincident", 15, 3, -1, 1),
    Sketcher.Constraint("Equal", 6, 9),
    Sketcher.Constraint("Equal", 9, 12),
    Sketcher.Constraint("Equal", 12, 15),
    Sketcher.Constraint("Symmetric", 0, 2, 2, 2, -1, 1),
    Sketcher.Constraint("Symmetric", 4, 2, 10, 2, -1, 1),
    Sketcher.Constraint("Symmetric", 7, 2, 13, 2, -1, 1),
    Sketcher.Constraint("Symmetric", 4, 2, 7, 2, -2),
    Sketcher.Constraint("Equal", 2, 1),
    Sketcher.Constraint("Equal", 14, 5),
    Sketcher.Constraint("Radius", 6, 4.75),
    Sketcher.Constraint("DistanceX", -1, 1, 4, 2, 0.6),
    Sketcher.Constraint("DistanceX", 0, 2, 0, 1, 37.554),
])
pocket4 = body.newObject("PartDesign::Pocket", "Pocket003")
pocket4.Profile = sketch5
pocket4.Length = 3.5

doc.recompute()
